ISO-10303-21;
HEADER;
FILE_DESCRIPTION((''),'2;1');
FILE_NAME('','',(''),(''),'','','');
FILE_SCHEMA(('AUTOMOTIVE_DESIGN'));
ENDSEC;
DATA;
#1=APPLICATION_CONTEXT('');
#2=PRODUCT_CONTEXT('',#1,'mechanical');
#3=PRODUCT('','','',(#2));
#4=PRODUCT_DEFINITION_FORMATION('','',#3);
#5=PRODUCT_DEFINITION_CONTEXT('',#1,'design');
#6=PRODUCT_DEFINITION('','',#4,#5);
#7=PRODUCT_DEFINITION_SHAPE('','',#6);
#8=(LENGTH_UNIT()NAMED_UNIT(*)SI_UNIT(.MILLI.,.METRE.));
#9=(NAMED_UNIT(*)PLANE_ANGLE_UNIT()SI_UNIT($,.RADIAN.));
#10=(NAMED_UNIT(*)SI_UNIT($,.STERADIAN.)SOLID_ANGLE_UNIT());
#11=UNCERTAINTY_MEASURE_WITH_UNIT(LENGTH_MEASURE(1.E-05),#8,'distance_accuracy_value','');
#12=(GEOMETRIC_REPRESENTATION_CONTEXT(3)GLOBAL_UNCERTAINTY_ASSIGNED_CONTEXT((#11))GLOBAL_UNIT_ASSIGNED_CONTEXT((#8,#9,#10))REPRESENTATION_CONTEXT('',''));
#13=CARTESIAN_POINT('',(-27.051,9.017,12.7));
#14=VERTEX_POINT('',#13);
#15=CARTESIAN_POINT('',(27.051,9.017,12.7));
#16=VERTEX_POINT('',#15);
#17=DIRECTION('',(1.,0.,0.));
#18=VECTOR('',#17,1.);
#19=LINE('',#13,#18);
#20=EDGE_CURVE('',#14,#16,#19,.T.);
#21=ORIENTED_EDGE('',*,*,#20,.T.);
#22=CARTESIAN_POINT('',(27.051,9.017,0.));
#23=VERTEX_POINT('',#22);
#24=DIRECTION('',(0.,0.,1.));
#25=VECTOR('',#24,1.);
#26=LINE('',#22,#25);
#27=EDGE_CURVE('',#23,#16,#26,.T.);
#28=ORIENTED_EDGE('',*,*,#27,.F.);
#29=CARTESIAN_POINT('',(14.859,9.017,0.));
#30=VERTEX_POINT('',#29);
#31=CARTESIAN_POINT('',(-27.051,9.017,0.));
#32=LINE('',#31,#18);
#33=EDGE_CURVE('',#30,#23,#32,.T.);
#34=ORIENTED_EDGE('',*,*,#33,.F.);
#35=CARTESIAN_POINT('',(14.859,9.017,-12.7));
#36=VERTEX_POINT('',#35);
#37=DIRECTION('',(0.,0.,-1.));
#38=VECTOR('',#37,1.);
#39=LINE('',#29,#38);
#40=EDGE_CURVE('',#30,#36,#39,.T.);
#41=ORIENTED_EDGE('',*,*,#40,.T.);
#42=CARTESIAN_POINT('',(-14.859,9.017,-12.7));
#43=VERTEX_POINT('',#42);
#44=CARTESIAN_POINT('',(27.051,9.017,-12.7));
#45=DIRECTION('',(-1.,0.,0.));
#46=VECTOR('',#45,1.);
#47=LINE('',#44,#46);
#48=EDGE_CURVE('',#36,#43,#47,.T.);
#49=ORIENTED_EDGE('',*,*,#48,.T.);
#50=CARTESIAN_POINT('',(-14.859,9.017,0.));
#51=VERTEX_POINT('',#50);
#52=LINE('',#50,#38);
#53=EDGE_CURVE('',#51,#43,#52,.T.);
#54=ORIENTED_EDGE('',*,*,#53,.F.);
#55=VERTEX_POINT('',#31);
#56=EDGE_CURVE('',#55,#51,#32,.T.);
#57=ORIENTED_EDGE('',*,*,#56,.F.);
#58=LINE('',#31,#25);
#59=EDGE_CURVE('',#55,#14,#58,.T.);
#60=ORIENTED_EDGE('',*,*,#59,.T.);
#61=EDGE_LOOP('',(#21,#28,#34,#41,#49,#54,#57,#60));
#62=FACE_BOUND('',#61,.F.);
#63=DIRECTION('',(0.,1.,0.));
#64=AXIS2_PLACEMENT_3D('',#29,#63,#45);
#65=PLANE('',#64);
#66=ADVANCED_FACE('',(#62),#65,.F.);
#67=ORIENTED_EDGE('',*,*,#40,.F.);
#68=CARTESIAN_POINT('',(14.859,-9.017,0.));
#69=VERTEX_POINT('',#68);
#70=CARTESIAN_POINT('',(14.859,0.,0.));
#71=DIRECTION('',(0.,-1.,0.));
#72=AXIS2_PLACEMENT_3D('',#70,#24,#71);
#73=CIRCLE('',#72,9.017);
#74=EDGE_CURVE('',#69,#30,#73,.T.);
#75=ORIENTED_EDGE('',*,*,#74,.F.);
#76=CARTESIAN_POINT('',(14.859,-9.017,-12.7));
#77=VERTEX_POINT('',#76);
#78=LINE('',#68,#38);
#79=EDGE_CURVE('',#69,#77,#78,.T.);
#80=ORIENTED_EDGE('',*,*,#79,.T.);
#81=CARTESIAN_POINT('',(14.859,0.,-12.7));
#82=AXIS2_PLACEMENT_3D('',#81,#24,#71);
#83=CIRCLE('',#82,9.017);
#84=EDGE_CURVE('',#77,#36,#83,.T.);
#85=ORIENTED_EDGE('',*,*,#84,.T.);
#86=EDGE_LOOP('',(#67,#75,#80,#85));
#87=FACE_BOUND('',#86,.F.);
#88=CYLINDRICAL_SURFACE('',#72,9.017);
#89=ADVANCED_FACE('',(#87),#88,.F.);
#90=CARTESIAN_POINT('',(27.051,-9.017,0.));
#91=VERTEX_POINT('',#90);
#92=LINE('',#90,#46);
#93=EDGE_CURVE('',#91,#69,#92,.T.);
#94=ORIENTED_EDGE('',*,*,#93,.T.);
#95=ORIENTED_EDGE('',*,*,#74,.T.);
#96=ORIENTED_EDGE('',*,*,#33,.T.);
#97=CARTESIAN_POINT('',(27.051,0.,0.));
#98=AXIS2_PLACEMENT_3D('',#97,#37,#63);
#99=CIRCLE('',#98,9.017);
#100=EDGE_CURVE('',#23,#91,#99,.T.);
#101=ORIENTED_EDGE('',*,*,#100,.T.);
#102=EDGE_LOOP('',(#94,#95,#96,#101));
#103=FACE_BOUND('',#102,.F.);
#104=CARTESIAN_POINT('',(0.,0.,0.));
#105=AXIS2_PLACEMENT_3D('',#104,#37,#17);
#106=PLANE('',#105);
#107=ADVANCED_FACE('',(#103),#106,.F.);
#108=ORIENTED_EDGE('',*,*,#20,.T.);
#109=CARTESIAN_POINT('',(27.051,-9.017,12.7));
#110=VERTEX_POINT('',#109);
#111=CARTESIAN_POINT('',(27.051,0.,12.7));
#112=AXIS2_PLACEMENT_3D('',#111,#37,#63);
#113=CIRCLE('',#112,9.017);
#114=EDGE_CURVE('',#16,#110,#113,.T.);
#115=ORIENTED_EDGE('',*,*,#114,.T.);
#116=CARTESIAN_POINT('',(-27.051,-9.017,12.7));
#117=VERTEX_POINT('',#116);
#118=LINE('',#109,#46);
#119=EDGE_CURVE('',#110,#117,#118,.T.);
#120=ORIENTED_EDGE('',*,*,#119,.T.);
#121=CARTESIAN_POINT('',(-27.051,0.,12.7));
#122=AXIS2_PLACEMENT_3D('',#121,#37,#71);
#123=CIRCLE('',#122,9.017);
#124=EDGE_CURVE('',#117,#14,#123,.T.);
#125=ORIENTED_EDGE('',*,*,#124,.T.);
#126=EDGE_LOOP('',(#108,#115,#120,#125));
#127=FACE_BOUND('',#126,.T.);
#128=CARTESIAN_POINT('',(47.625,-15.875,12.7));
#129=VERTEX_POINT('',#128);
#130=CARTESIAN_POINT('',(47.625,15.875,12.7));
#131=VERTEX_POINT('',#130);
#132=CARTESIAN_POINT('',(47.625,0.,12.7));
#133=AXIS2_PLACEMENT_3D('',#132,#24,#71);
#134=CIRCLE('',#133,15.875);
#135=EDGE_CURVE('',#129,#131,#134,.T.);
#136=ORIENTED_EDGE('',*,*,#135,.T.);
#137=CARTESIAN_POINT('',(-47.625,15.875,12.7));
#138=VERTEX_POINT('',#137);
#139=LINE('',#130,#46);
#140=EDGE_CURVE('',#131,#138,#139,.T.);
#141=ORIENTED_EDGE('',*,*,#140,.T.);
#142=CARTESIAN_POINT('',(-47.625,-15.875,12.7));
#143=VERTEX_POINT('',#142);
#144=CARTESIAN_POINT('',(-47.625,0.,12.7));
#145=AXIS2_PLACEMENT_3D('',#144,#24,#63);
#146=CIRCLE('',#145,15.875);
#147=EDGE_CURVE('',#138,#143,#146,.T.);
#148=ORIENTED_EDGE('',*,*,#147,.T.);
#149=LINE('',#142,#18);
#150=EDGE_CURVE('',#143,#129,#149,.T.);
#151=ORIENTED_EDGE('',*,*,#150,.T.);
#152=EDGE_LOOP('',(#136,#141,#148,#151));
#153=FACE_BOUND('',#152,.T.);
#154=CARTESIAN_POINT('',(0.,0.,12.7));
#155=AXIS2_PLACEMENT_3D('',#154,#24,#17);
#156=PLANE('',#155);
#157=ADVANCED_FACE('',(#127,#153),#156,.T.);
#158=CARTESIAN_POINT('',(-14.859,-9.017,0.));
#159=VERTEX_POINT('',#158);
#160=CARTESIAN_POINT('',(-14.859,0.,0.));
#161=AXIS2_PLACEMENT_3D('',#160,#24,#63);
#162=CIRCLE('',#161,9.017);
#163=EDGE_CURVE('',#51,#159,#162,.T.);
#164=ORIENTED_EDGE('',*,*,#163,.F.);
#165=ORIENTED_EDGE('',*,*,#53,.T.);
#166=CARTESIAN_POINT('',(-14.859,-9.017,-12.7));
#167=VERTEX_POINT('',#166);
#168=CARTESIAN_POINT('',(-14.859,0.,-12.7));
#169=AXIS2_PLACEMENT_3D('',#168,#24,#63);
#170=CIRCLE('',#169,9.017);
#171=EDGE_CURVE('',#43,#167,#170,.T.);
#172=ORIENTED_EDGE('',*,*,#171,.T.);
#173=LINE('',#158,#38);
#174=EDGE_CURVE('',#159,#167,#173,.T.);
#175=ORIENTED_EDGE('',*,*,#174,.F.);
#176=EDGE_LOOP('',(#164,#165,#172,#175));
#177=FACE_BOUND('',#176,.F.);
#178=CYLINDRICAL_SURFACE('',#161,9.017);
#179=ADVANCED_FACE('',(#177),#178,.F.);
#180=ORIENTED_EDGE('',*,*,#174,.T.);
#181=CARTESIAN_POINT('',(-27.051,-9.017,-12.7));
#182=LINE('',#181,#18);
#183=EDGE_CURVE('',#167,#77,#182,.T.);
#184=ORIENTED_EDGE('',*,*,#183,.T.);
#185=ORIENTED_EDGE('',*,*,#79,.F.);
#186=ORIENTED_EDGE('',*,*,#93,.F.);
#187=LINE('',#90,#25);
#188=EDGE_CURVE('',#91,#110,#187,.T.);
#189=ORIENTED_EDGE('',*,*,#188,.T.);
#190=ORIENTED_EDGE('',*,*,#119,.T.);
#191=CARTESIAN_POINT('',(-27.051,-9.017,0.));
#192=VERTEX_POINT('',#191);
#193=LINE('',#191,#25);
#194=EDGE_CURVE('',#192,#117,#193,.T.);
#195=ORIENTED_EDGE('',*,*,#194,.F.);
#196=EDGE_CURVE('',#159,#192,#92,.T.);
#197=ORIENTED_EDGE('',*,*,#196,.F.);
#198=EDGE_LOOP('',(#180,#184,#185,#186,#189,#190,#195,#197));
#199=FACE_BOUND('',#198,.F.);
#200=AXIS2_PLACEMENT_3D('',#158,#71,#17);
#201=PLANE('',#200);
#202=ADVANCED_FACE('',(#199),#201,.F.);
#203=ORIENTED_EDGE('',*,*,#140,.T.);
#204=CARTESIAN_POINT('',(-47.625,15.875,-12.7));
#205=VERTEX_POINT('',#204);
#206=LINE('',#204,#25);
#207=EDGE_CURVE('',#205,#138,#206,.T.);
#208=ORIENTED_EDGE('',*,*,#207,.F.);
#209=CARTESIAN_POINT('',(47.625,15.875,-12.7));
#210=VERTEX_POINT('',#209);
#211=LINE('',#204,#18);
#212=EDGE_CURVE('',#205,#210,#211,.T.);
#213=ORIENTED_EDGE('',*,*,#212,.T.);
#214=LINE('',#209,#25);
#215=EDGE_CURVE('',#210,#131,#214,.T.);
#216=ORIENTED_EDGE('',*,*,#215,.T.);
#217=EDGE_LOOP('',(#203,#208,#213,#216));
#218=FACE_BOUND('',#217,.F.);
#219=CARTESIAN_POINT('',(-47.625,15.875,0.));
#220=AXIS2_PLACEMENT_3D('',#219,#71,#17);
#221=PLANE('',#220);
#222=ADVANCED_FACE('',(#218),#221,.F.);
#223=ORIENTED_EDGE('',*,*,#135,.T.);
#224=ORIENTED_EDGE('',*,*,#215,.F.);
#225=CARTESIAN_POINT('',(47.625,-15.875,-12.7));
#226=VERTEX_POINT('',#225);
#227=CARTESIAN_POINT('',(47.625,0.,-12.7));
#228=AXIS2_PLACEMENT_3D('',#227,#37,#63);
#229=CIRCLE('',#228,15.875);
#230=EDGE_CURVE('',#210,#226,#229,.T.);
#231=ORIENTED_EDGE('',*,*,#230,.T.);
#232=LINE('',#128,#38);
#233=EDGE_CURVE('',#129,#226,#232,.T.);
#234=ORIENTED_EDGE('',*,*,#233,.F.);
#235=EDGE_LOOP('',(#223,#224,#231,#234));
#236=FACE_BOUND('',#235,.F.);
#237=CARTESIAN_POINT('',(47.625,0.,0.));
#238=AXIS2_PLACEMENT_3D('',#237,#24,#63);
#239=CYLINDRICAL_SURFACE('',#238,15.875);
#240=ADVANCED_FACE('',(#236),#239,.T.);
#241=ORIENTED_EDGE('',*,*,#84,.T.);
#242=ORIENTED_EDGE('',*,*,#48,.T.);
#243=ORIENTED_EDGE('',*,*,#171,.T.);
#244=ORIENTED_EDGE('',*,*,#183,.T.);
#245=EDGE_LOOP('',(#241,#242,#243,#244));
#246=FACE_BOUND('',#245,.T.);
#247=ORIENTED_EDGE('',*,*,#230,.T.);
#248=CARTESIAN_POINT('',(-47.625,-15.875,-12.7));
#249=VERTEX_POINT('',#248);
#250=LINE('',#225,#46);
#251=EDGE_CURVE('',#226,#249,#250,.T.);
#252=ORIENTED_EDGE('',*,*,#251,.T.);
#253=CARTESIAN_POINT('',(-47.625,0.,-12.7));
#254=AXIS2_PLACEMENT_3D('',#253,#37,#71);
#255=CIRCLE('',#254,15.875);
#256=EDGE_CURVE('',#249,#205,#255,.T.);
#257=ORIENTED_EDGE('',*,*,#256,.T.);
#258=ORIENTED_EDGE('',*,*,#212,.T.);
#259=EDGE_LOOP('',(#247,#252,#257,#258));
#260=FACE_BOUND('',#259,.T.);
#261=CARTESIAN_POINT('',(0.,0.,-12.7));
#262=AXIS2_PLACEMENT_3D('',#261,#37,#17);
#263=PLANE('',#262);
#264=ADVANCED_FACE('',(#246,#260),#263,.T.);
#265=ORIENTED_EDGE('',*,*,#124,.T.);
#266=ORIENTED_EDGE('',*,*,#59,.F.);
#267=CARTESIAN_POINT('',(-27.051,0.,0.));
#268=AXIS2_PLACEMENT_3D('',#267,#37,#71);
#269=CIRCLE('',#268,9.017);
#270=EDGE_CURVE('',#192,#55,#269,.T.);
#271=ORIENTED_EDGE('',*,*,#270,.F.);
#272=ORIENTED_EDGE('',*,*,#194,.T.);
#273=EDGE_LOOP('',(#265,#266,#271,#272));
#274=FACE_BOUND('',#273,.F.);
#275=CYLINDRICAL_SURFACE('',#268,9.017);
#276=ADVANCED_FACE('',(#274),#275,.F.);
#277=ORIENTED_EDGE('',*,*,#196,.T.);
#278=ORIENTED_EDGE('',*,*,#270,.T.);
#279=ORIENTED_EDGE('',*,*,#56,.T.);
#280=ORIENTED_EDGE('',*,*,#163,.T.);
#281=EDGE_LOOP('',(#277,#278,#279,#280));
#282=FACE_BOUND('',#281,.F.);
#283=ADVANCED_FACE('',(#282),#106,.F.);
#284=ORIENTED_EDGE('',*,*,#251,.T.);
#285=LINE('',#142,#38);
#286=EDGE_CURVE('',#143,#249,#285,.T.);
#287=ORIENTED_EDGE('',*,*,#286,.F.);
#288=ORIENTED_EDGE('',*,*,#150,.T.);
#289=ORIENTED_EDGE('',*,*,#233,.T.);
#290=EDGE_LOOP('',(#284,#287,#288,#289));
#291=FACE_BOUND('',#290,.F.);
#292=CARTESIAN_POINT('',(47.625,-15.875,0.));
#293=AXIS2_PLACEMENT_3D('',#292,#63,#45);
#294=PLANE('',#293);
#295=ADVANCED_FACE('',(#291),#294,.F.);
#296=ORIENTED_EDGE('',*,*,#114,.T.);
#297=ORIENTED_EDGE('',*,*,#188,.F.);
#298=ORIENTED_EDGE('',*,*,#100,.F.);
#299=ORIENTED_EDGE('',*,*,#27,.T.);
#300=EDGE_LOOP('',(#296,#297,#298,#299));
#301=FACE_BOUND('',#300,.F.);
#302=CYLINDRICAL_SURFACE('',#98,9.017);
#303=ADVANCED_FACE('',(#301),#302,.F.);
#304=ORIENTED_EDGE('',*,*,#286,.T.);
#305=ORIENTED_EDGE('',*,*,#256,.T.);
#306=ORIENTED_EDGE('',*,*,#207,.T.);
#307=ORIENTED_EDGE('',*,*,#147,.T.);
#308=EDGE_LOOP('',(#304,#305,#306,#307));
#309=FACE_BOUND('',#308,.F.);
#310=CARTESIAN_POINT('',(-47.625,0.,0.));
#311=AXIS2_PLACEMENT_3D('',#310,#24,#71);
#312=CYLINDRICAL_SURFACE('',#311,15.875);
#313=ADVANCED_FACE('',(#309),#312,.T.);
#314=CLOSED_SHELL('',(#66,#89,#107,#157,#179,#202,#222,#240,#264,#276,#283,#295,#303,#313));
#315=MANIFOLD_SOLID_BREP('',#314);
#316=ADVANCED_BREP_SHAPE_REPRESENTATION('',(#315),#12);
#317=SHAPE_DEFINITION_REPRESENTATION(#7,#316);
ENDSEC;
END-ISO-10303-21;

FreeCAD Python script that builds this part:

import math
import FreeCAD as App
import Part
import Sketcher
from FreeCAD import Vector
Q = App.Units.Quantity

doc = App.newDocument("Part")
body = doc.addObject("PartDesign::Body", "Body")

# Sketch on XY plane
sketch1 = doc.addObject("Sketcher::SketchObject", "Sketch")
body.addObject(sketch1)
sketch1.AttachmentSupport = (doc.XY_Plane, [""])
sketch1.MapMode = "FlatFace"
sketch1.addGeometry([
    Part.LineSegment(Vector(-47.625, -15.875, 0), Vector(47.625, -15.875, 0)),  # 0
    Part.ArcOfCircle(Part.Circle(Vector(47.625, 0, 0), Vector(0, 0, 1), 15.875), math.radians(-90), math.radians(90)),  # 1
    Part.LineSegment(Vector(47.625, 15.875, 0), Vector(-47.625, 15.875, 0)),  # 2
    Part.ArcOfCircle(Part.Circle(Vector(-47.625, 0, 0), Vector(0, 0, 1), 15.875), math.radians(90), math.radians(270)),  # 3
    Part.LineSegment(Vector(-27.051, 9.017, 0), Vector(27.051, 9.017, 0)),  # 4
    Part.ArcOfCircle(Part.Circle(Vector(27.051, 0, 0), Vector(0, 0, 1), 9.017), math.radians(-90), math.radians(90)),  # 5
    Part.LineSegment(Vector(27.051, -9.017, 0), Vector(-27.051, -9.017, 0)),  # 6
    Part.ArcOfCircle(Part.Circle(Vector(-27.051, 0, 0), Vector(0, 0, 1), 9.017), math.radians(90), math.radians(270)),  # 7
], False)
sketch1.addConstraint([
    Sketcher.Constraint("Tangent", 0, 2, 1, 1),
    Sketcher.Constraint("Tangent", 1, 2, 2, 1),
    Sketcher.Constraint("Tangent", 2, 2, 3, 1),
    Sketcher.Constraint("Tangent", 3, 2, 0, 1),
    Sketcher.Constraint("Tangent", 4, 2, 5, 2),
    Sketcher.Constraint("Tangent", 5, 1, 6, 1),
    Sketcher.Constraint("Tangent", 6, 2, 7, 2),
    Sketcher.Constraint("Tangent", 7, 1, 4, 1),
    Sketcher.Constraint("Horizontal", 0),
    Sketcher.Constraint("Horizontal", 2),
    Sketcher.Constraint("Horizontal", 4),
    Sketcher.Constraint("Horizontal", 6),
    Sketcher.Constraint("Symmetric", 1, 3, 3, 3, -1, 1),
    Sketcher.Constraint("Symmetric", 5, 3, 7, 3, -1, 1),
    Sketcher.Constraint("Radius", 1, Q("0.625 in")),
    Sketcher.Constraint("Radius", 5, Q("0.355 in")),
    Sketcher.Constraint("DistanceX", 0, 1, 0, 2, Q("3.75 in")),
    Sketcher.Constraint("DistanceX", 4, 1, 4, 2, Q("2.13 in")),
])
pad1 = doc.addObject("PartDesign::Pad", "Pad")
body.addObject(pad1)
pad1.Profile = sketch1
pad1.Length = Q("0.5 in")

# Sketch on XY plane
sketch2 = doc.addObject("Sketcher::SketchObject", "Sketch001")
body.addObject(sketch2)
sketch2.AttachmentSupport = (doc.XY_Plane, [""])
sketch2.MapMode = "FlatFace"
sketch2.addGeometry([
    Part.ArcOfCircle(Part.Circle(Vector(47.625, 0, 0), Vector(0, 0, 1), 15.875), math.radians(-90), math.radians(90)),  # 0
    Part.LineSegment(Vector(47.625, -15.875, 0), Vector(-47.625, -15.875, 0)),  # 1
    Part.ArcOfCircle(Part.Circle(Vector(-47.625, 0, 0), Vector(0, 0, 1), 15.875), math.radians(90), math.radians(270)),  # 2
    Part.LineSegment(Vector(-47.625, 15.875, 0), Vector(47.625, 15.875, 0)),  # 3
    Part.LineSegment(Vector(14.859, 9.017, 0), Vector(-14.859, 9.017, 0)),  # 4
    Part.ArcOfCircle(Part.Circle(Vector(-14.859, 0, 0), Vector(0, 0, 1), 9.017), math.radians(90), math.radians(270)),  # 5
    Part.LineSegment(Vector(-14.859, -9.017, 0), Vector(14.859, -9.017, 0)),  # 6
    Part.ArcOfCircle(Part.Circle(Vector(14.859, 0, 0), Vector(0, 0, 1), 9.017), math.radians(-90), math.radians(90)),  # 7
], False)
sketch2.addConstraint([
    Sketcher.Constraint("Tangent", 0, 1, 1, 1),
    Sketcher.Constraint("Tangent", 1, 2, 2, 2),
    Sketcher.Constraint("Tangent", 2, 1, 3, 1),
    Sketcher.Constraint("Tangent", 3, 2, 0, 2),
    Sketcher.Constraint("Tangent", 4, 2, 5, 1),
    Sketcher.Constraint("Tangent", 5, 2, 6, 1),
    Sketcher.Constraint("Tangent", 6, 2, 7, 1),
    Sketcher.Constraint("Tangent", 7, 2, 4, 1),
    Sketcher.Constraint("Horizontal", 1),
    Sketcher.Constraint("Horizontal", 3),
    Sketcher.Constraint("Horizontal", 4),
    Sketcher.Constraint("Horizontal", 6),
    Sketcher.Constraint("Symmetric", 0, 3, 2, 3, -1, 1),
    Sketcher.Constraint("Symmetric", 5, 3, 7, 3, -1, 1),
    Sketcher.Constraint("Radius", 0, Q("0.625 in")),
    Sketcher.Constraint("Radius", 5, Q("0.355 in")),
    Sketcher.Constraint("DistanceX", 1, 2, 1, 1, Q("3.75 in")),
    Sketcher.Constraint("DistanceX", 4, 2, 4, 1, Q("1.17 in")),
])
pad2 = doc.addObject("PartDesign::Pad", "Pad001")
body.addObject(pad2)
pad2.Profile = sketch2
pad2.Length = Q("0.5 in")
pad2.Reversed = True

doc.recompute()
